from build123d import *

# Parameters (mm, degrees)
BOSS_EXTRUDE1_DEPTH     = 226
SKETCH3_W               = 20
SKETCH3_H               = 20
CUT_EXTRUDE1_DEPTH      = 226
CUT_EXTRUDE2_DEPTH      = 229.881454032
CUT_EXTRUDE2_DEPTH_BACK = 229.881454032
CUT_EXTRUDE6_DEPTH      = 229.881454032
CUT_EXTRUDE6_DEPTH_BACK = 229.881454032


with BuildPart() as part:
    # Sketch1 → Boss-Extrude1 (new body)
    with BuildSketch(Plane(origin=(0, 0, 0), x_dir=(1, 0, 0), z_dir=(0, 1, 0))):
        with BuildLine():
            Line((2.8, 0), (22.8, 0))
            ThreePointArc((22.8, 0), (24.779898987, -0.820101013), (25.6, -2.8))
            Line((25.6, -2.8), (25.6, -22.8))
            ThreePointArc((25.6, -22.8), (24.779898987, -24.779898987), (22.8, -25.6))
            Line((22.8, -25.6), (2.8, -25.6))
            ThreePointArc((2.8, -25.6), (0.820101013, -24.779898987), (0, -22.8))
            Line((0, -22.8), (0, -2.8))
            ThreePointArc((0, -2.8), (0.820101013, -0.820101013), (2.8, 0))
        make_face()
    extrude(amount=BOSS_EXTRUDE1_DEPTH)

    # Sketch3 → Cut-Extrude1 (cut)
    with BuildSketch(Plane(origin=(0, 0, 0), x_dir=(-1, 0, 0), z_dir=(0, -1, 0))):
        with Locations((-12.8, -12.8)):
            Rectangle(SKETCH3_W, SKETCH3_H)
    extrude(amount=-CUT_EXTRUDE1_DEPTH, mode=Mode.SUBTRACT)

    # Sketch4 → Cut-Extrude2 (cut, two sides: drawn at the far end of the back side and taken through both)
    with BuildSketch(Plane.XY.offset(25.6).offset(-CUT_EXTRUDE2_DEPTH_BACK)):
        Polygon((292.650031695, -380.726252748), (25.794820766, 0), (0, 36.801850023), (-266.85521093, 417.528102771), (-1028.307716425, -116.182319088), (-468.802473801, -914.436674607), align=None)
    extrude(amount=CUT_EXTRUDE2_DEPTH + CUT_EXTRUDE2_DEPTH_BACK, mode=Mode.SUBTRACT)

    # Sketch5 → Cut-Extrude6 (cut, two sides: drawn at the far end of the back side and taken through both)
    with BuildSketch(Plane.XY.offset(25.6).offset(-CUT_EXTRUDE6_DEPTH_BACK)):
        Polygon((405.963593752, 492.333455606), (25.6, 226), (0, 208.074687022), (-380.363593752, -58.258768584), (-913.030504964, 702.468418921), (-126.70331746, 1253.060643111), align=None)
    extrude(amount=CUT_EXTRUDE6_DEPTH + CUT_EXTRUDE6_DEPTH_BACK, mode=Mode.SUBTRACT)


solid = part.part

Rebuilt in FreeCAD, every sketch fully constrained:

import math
import FreeCAD as App
import Part
import Sketcher
from FreeCAD import Vector
Q = App.Units.Quantity


def add_polygon(sketch, points):
    """Adds a closed chain of lines whose ends are joined by coincident constraints."""
    first, n = sketch.GeometryCount, len(points)
    for a, b in zip(points, points[1:] + points[:1]):
        sketch.addGeometry(Part.LineSegment(App.Vector(*a, 0), App.Vector(*b, 0)), False)
    for i in range(n):
        sketch.addConstraint(Sketcher.Constraint("Coincident", first + i, 2, first + (i + 1) % n, 1))

doc = App.newDocument("Part")
body = doc.addObject("PartDesign::Body", "Body")

# Sketch on XZ plane
sketch1 = body.newObject("Sketcher::SketchObject", "Sketch")
sketch1.AttachmentSupport = (doc.getObject("XZ_Plane"), [""])
sketch1.MapMode = "FlatFace"
sketch1.addGeometry(Part.LineSegment(Vector(22.8, 0, 0), Vector(2.8, 0, 0)), False)
sketch1.addGeometry(Part.ArcOfCircle(Part.Circle(Vector(2.8, 2.8, 0), Vector(0, 0, 1), 2.8), math.radians(-180), math.radians(-90)), False)
sketch1.addGeometry(Part.LineSegment(Vector(0, 2.8, 0), Vector(0, 22.8, 0)), False)
sketch1.addGeometry(Part.ArcOfCircle(Part.Circle(Vector(2.8, 22.8, 0), Vector(0, 0, 1), 2.8), math.radians(90), math.radians(180)), False)
sketch1.addGeometry(Part.LineSegment(Vector(2.8, 25.6, 0), Vector(22.8, 25.6, 0)), False)
sketch1.addGeometry(Part.ArcOfCircle(Part.Circle(Vector(22.8, 22.8, 0), Vector(0, 0, 1), 2.8), math.radians(0), math.radians(90)), False)
sketch1.addGeometry(Part.LineSegment(Vector(25.6, 22.8, 0), Vector(25.6, 2.8, 0)), False)
sketch1.addGeometry(Part.ArcOfCircle(Part.Circle(Vector(22.8, 2.8, 0), Vector(0, 0, 1), 2.8), math.radians(-90), math.radians(0)), False)
sketch1.addConstraint(Sketcher.Constraint("Tangent", 0, 2, 1, 2))
sketch1.addConstraint(Sketcher.Constraint("Tangent", 1, 1, 2, 1))
sketch1.addConstraint(Sketcher.Constraint("Tangent", 2, 2, 3, 2))
sketch1.addConstraint(Sketcher.Constraint("Tangent", 3, 1, 4, 1))
sketch1.addConstraint(Sketcher.Constraint("Tangent", 4, 2, 5, 2))
sketch1.addConstraint(Sketcher.Constraint("Tangent", 5, 1, 6, 1))
sketch1.addConstraint(Sketcher.Constraint("Tangent", 6, 2, 7, 2))
sketch1.addConstraint(Sketcher.Constraint("Tangent", 7, 1, 0, 1))
sketch1.addConstraint(Sketcher.Constraint("Horizontal", 0))
sketch1.addConstraint(Sketcher.Constraint("Vertical", 2))
sketch1.addConstraint(Sketcher.Constraint("Horizontal", 4))
sketch1.addConstraint(Sketcher.Constraint("Vertical", 6))
sketch1.addConstraint(Sketcher.Constraint("Equal", 1, 3))
sketch1.addConstraint(Sketcher.Constraint("Equal", 3, 5))
sketch1.addConstraint(Sketcher.Constraint("Equal", 5, 7))
sketch1.addConstraint(Sketcher.Constraint("PointOnObject", 0, 2, -1))
sketch1.addConstraint(Sketcher.Constraint("PointOnObject", 1, 1, -2))
sketch1.addConstraint(Sketcher.Constraint("Equal", 4, 2))
sketch1.addConstraint(Sketcher.Constraint("Radius", 1, Q("2.8 mm")))
sketch1.addConstraint(Sketcher.Constraint("DistanceX", 0, 2, 0, 1, Q("20 mm")))
pad1 = body.newObject("PartDesign::Pad", "Pad")
pad1.Profile = sketch1
pad1.Length = 226
pad1.Reversed = True

# Sketch on XZ plane
sketch2 = body.newObject("Sketcher::SketchObject", "Sketch001")
sketch2.AttachmentSupport = (doc.getObject("XZ_Plane"), [""])
sketch2.MapMode = "FlatFace"
add_polygon(sketch2, [(22.8, 2.8), (22.8, 22.8), (2.8, 22.8), (2.8, 2.8)])  # lines 0-3
sketch2.addConstraint(Sketcher.Constraint("Vertical", 0))
sketch2.addConstraint(Sketcher.Constraint("Horizontal", 1))
sketch2.addConstraint(Sketcher.Constraint("Vertical", 2))
sketch2.addConstraint(Sketcher.Constraint("Horizontal", 3))
sketch2.addConstraint(Sketcher.Constraint("Equal", 3, 0))
sketch2.addConstraint(Sketcher.Constraint("DistanceX", 1, 2, 1, 1, Q("20 mm")))
sketch2.addConstraint(Sketcher.Constraint("DistanceX", -1, 1, 0, 2, Q("22.8 mm")))
sketch2.addConstraint(Sketcher.Constraint("DistanceY", -1, 1, 0, 2, Q("22.8 mm")))
pocket1 = body.newObject("PartDesign::Pocket", "Pocket")
pocket1.Profile = sketch2
pocket1.Length = 226

# Sketch on XY plane
sketch3 = body.newObject("Sketcher::SketchObject", "Sketch002")
sketch3.AttachmentSupport = (doc.getObject("XY_Plane"), [""])
sketch3.MapMode = "FlatFace"
sketch3.AttachmentOffset = App.Placement(Vector(0, 0, 25.6), App.Rotation())
add_polygon(sketch3, [(292.650032, -380.726253), (25.794821, 0), (0, 36.80185), (-266.855211, 417.528103), (-1028.307716, -116.182319), (-468.802474, -914.436675)])  # lines 0-5
sketch3.addConstraint(Sketcher.Constraint("PointOnObject", 0, 2, -1))
sketch3.addConstraint(Sketcher.Constraint("PointOnObject", 1, 2, -2))
sketch3.addConstraint(Sketcher.Constraint("Parallel", 0, 1))
sketch3.addConstraint(Sketcher.Constraint("Parallel", 1, 2))
sketch3.addConstraint(Sketcher.Constraint("Perpendicular", 2, 3))
sketch3.addConstraint(Sketcher.Constraint("Perpendicular", 3, 4))
sketch3.addConstraint(Sketcher.Constraint("Perpendicular", 4, 5))
sketch3.addConstraint(Sketcher.Constraint("Equal", 0, 2))
sketch3.addConstraint(Sketcher.Constraint("Distance", 0, Q("464.934601 mm")))
sketch3.addConstraint(Sketcher.Constraint("Distance", 3, Q("929.869202 mm")))
sketch3.addConstraint(Sketcher.Constraint("Distance", 4, Q("974.810819 mm")))
sketch3.addConstraint(Sketcher.Constraint("DistanceX", -1, 1, 0, 2, Q("25.794821 mm")))
pocket2 = body.newObject("PartDesign::Pocket", "Pocket001")
pocket2.Profile = sketch3
pocket2.Type = "ThroughAll"
pocket2.Midplane = True

# Sketch on XY plane
sketch4 = body.newObject("Sketcher::SketchObject", "Sketch003")
sketch4.AttachmentSupport = (doc.getObject("XY_Plane"), [""])
sketch4.MapMode = "FlatFace"
sketch4.AttachmentOffset = App.Placement(Vector(0, 0, 25.6), App.Rotation())
add_polygon(sketch4, [(25.6, 226), (405.963594, 492.333456), (-126.703317, 1253.060643), (-913.030505, 702.468419), (-380.363594, -58.258769), (0, 208.074687)])  # lines 0-5
sketch4.addConstraint(Sketcher.Constraint("PointOnObject", 4, 2, -2))
sketch4.addConstraint(Sketcher.Constraint("Perpendicular", 0, 1))
sketch4.addConstraint(Sketcher.Constraint("Perpendicular", 1, 2))
sketch4.addConstraint(Sketcher.Constraint("Perpendicular", 2, 3))
sketch4.addConstraint(Sketcher.Constraint("Perpendicular", 3, 4))
sketch4.addConstraint(Sketcher.Constraint("Parallel", 4, 5))
sketch4.addConstraint(Sketcher.Constraint("Equal", 0, 4))
sketch4.addConstraint(Sketcher.Constraint("Angle", 0, Q("35 deg")))
sketch4.addConstraint(Sketcher.Constraint("DistanceY", -1, 1, 5, 2, Q("226 mm")))
sketch4.addConstraint(Sketcher.Constraint("DistanceX", -1, 1, 5, 2, Q("25.6 mm")))
sketch4.addConstraint(Sketcher.Constraint("DistanceX", 2, 2, 0, 2, Q("1318.994099 mm")))
sketch4.addConstraint(Sketcher.Constraint("Distance", 0, Q("464.33821 mm")))
pocket3 = body.newObject("PartDesign::Pocket", "Pocket002")
pocket3.Profile = sketch4
pocket3.Type = "ThroughAll"
pocket3.Midplane = True

doc.recompute()
